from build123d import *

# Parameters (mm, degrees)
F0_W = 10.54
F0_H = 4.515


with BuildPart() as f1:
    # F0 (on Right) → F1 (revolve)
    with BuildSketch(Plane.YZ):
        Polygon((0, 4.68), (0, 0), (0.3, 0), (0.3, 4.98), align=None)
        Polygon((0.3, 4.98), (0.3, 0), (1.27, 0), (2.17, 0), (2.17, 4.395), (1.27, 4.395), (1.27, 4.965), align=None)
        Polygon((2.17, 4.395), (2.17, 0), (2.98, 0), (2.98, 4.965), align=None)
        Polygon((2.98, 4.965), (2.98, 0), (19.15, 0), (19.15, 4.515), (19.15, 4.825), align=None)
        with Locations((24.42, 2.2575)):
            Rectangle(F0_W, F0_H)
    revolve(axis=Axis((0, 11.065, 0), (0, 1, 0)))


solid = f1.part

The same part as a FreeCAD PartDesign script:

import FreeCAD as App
import Part
import Sketcher

V = App.Vector
Q = App.Units.Quantity

doc = App.newDocument("Part")
body = doc.addObject("PartDesign::Body", "Body")

# Sketch on YZ plane
sketch1 = body.newObject("Sketcher::SketchObject", "Sketch")
sketch1.AttachmentSupport = (doc.getObject("YZ_Plane"), [""])
sketch1.MapMode = "FlatFace"
sketch1.addGeometry([
    Part.LineSegment(V(0, 4.68, 0), V(0, 0, 0)),  # 0
    Part.LineSegment(V(0, 0, 0), V(29.69, 0, 0)),  # 1
    Part.LineSegment(V(29.69, 0, 0), V(29.69, 4.51, 0)),  # 2
    Part.LineSegment(V(29.69, 4.51, 0), V(19.15, 4.51, 0)),  # 3
    Part.LineSegment(V(19.15, 4.51, 0), V(19.15, 4.83, 0)),  # 4
    Part.LineSegment(V(19.15, 4.83, 0), V(2.98, 4.96, 0)),  # 5
    Part.LineSegment(V(2.98, 4.96, 0), V(2.17, 4.39, 0)),  # 6
    Part.LineSegment(V(2.17, 4.39, 0), V(1.27, 4.39, 0)),  # 7
    Part.LineSegment(V(1.27, 4.39, 0), V(1.27, 4.96, 0)),  # 8
    Part.LineSegment(V(1.27, 4.96, 0), V(0.3, 4.98, 0)),  # 9
    Part.LineSegment(V(0.3, 4.98, 0), V(0, 4.68, 0)),  # 10
], False)
sketch1.addConstraint([
    Sketcher.Constraint("Coincident", 0, 2, 1, 1),
    Sketcher.Constraint("Coincident", 1, 2, 2, 1),
    Sketcher.Constraint("Coincident", 2, 2, 3, 1),
    Sketcher.Constraint("Coincident", 3, 2, 4, 1),
    Sketcher.Constraint("Coincident", 4, 2, 5, 1),
    Sketcher.Constraint("Coincident", 5, 2, 6, 1),
    Sketcher.Constraint("Coincident", 6, 2, 7, 1),
    Sketcher.Constraint("Coincident", 7, 2, 8, 1),
    Sketcher.Constraint("Coincident", 8, 2, 9, 1),
    Sketcher.Constraint("Coincident", 9, 2, 10, 1),
    Sketcher.Constraint("Coincident", 10, 2, 0, 1),
    Sketcher.Constraint("Vertical", 0),
    Sketcher.Constraint("Horizontal", 1),
    Sketcher.Constraint("Vertical", 2),
    Sketcher.Constraint("Horizontal", 3),
    Sketcher.Constraint("Vertical", 4),
    Sketcher.Constraint("Horizontal", 7),
    Sketcher.Constraint("Vertical", 8),
    Sketcher.Constraint("Coincident", 0, 2, -1, 1),
    Sketcher.Constraint("Horizontal", 5, 2, 8, 2),
    Sketcher.Constraint("Angle", 10, Q("-135 deg")),
    Sketcher.Constraint("DistanceX", 7, 2, 7, 1, Q("0.9 mm")),
    Sketcher.Constraint("DistanceX", 1, 1, 1, 2, Q("29.69 mm")),
    Sketcher.Constraint("DistanceX", 3, 2, 3, 1, Q("10.54 mm")),
    Sketcher.Constraint("DistanceY", 0, 2, 0, 1, Q("4.68 mm")),
    Sketcher.Constraint("DistanceY", 4, 1, 4, 2, Q("0.31 mm")),
    Sketcher.Constraint("DistanceY", 8, 1, 8, 2, Q("0.57 mm")),
    Sketcher.Constraint("DistanceX", -1, 1, 9, 2, Q("0.3 mm")),
    Sketcher.Constraint("DistanceY", 2, 1, 2, 2, Q("4.515 mm")),
    Sketcher.Constraint("DistanceX", -1, 1, 5, 2, Q("2.98 mm")),
    Sketcher.Constraint("DistanceX", -1, 1, 6, 2, Q("2.17 mm")),
    Sketcher.Constraint("DistanceY", 4, 2, 5, 2, Q("0.14 mm")),
])
revolution = body.newObject("PartDesign::Revolution", "Revolution")
revolution.Profile = sketch1
revolution.ReferenceAxis = (sketch1, ["H_Axis"])
revolution.Angle = 360

doc.recompute()
